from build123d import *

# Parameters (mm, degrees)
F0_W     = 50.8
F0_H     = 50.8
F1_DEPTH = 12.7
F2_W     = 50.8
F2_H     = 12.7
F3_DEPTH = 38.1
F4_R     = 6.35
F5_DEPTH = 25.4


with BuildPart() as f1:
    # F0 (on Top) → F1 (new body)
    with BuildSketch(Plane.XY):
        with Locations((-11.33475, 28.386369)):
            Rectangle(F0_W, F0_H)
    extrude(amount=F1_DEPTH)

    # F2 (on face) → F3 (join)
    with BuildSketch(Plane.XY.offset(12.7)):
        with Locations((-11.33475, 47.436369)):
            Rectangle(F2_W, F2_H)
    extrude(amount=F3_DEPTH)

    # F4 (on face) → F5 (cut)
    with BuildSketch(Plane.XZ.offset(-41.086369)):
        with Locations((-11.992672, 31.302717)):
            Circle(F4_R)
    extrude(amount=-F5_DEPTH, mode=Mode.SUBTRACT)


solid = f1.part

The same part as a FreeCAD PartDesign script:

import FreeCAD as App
import Part
import Sketcher
from FreeCAD import Vector
Q = App.Units.Quantity

doc = App.newDocument("Part")
body = doc.addObject("PartDesign::Body", "Body")

sketch1 = body.newObject("Sketcher::SketchObject", "Sketch")
sketch1.AttachmentSupport = (doc.getObject("XY_Plane"), [""])
sketch1.MapMode = "FlatFace"
sketch1.addGeometry(Part.LineSegment(Vector(-37, 54, 0), Vector(-37, 3, 0)), False)
sketch1.addGeometry(Part.LineSegment(Vector(-37, 3, 0), Vector(14, 3, 0)), False)
sketch1.addGeometry(Part.LineSegment(Vector(14, 3, 0), Vector(14, 54, 0)), False)
sketch1.addGeometry(Part.LineSegment(Vector(14, 54, 0), Vector(-37, 54, 0)), False)
sketch1.addConstraint(Sketcher.Constraint("Coincident", 0, 2, 1, 1))
sketch1.addConstraint(Sketcher.Constraint("Coincident", 1, 2, 2, 1))
sketch1.addConstraint(Sketcher.Constraint("Coincident", 2, 2, 3, 1))
sketch1.addConstraint(Sketcher.Constraint("Coincident", 3, 2, 0, 1))
sketch1.addConstraint(Sketcher.Constraint("Vertical", 0))
sketch1.addConstraint(Sketcher.Constraint("Horizontal", 1))
sketch1.addConstraint(Sketcher.Constraint("Vertical", 2))
sketch1.addConstraint(Sketcher.Constraint("Horizontal", 3))
sketch1.addConstraint(Sketcher.Constraint("Equal", 3, 0))
sketch1.addConstraint(Sketcher.Constraint("DistanceX", 1, 1, 1, 2, Q("2 in")))
sketch1.addConstraint(Sketcher.Constraint("DistanceX", 0, 2, -1, 1, Q("36.73475 mm")))
sketch1.addConstraint(Sketcher.Constraint("DistanceY", -1, 1, 0, 2, Q("2.986369 mm")))
pad1 = body.newObject("PartDesign::Pad", "Pad")
pad1.Profile = sketch1
pad1.Length = Q("0.5 in")

sketch2 = body.newObject("Sketcher::SketchObject", "Sketch001")
sketch2.AttachmentSupport = (doc.getObject("XY_Plane"), [""])
sketch2.MapMode = "FlatFace"
sketch2.AttachmentOffset = App.Placement(Vector(0, 0, 0.5 * 25.4), App.Rotation())
sketch2.addGeometry(Part.LineSegment(Vector(-37, 54, 0), Vector(-37, 41, 0)), False)
sketch2.addGeometry(Part.LineSegment(Vector(-37, 41, 0), Vector(14, 41, 0)), False)
sketch2.addGeometry(Part.LineSegment(Vector(14, 41, 0), Vector(14, 54, 0)), False)
sketch2.addGeometry(Part.LineSegment(Vector(14, 54, 0), Vector(-37, 54, 0)), False)
sketch2.addConstraint(Sketcher.Constraint("Coincident", 0, 2, 1, 1))
sketch2.addConstraint(Sketcher.Constraint("Coincident", 1, 2, 2, 1))
sketch2.addConstraint(Sketcher.Constraint("Coincident", 2, 2, 3, 1))
sketch2.addConstraint(Sketcher.Constraint("Coincident", 3, 2, 0, 1))
sketch2.addConstraint(Sketcher.Constraint("Vertical", 0))
sketch2.addConstraint(Sketcher.Constraint("Horizontal", 1))
sketch2.addConstraint(Sketcher.Constraint("Vertical", 2))
sketch2.addConstraint(Sketcher.Constraint("Horizontal", 3))
sketch2.addConstraint(Sketcher.Constraint("DistanceX", 1, 1, 1, 2, Q("2 in")))
sketch2.addConstraint(Sketcher.Constraint("DistanceY", 0, 2, 0, 1, Q("0.5 in")))
sketch2.addConstraint(Sketcher.Constraint("DistanceX", 0, 2, -1, 1, Q("36.73475 mm")))
sketch2.addConstraint(Sketcher.Constraint("DistanceY", -1, 1, 0, 2, Q("41.086369 mm")))
pad2 = body.newObject("PartDesign::Pad", "Pad001")
pad2.Profile = sketch2
pad2.Length = Q("1.5 in")

sketch3 = body.newObject("Sketcher::SketchObject", "Sketch002")
sketch3.AttachmentSupport = (doc.getObject("XZ_Plane"), [""])
sketch3.MapMode = "FlatFace"
sketch3.AttachmentOffset = App.Placement(Vector(0, 0, -41.086369), App.Rotation())
sketch3.addGeometry(Part.Circle(Vector(-12, 31, 0), Vector(0, 0, 1), 6), False)
sketch3.addConstraint(Sketcher.Constraint("Diameter", 0, Q("0.5 in")))
sketch3.addConstraint(Sketcher.Constraint("DistanceX", 0, 3, -1, 1, Q("11.992672 mm")))
sketch3.addConstraint(Sketcher.Constraint("DistanceY", -1, 1, 0, 3, Q("31.302717 mm")))
pocket1 = body.newObject("PartDesign::Pocket", "Pocket")
pocket1.Profile = sketch3
pocket1.Length = Q("1 in")

doc.recompute()
